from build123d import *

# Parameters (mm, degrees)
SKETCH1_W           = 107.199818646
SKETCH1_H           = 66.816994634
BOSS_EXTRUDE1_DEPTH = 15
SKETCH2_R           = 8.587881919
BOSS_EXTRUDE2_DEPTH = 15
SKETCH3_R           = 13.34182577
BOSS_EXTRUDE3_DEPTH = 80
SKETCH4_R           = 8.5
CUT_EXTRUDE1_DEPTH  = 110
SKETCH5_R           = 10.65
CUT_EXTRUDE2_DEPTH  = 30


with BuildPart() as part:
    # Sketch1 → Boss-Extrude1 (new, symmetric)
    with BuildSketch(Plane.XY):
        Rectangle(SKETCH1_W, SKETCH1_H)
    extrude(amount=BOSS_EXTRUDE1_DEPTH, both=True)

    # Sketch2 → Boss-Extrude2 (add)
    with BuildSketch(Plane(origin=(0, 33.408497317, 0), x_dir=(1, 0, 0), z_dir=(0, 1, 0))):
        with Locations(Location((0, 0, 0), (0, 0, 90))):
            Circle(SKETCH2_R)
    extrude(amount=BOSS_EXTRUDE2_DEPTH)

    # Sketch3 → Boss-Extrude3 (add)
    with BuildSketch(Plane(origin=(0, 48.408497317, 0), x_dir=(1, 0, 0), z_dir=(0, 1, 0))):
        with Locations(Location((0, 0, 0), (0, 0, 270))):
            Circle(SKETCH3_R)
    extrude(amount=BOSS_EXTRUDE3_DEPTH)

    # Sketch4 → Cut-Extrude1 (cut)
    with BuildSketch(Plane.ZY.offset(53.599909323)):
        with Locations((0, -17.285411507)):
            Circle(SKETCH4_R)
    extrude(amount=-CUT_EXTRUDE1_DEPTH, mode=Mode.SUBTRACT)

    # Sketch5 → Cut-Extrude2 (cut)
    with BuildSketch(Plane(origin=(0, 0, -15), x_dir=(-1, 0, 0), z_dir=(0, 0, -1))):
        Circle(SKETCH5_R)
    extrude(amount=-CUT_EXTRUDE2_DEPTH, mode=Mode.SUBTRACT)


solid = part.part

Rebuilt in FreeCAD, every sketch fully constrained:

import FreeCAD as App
import Part
import Sketcher

V = App.Vector

doc = App.newDocument("Part")
body = doc.addObject("PartDesign::Body", "Body")

sketch1 = body.newObject("Sketcher::SketchObject", "Sketch")
sketch1.AttachmentSupport = (doc.getObject("XY_Plane"), [""])
sketch1.MapMode = "FlatFace"
sketch1.addGeometry([
    Part.LineSegment(V(-53.599909, 33.408497, 0), V(-53.599909, -33.408497, 0)),
    Part.LineSegment(V(-53.599909, -33.408497, 0), V(53.599909, -33.408497, 0)),
    Part.LineSegment(V(53.599909, -33.408497, 0), V(53.599909, 33.408497, 0)),
    Part.LineSegment(V(53.599909, 33.408497, 0), V(-53.599909, 33.408497, 0)),
], False)
sketch1.addConstraint([
    Sketcher.Constraint("Coincident", 0, 2, 1, 1),
    Sketcher.Constraint("Coincident", 1, 2, 2, 1),
    Sketcher.Constraint("Coincident", 2, 2, 3, 1),
    Sketcher.Constraint("Coincident", 3, 2, 0, 1),
    Sketcher.Constraint("Vertical", 0),
    Sketcher.Constraint("Horizontal", 1),
    Sketcher.Constraint("Vertical", 2),
    Sketcher.Constraint("Horizontal", 3),
    Sketcher.Constraint("Symmetric", 0, 2, 2, 2, -1, 1),
    Sketcher.Constraint("DistanceX", 1, 1, 1, 2, 107.199819),
    Sketcher.Constraint("DistanceY", 0, 2, 0, 1, 66.816995),
])
pad1 = body.newObject("PartDesign::Pad", "Pad")
pad1.Profile = sketch1
pad1.Length = 30
pad1.Midplane = True

sketch2 = body.newObject("Sketcher::SketchObject", "Sketch001")
sketch2.AttachmentSupport = (doc.getObject("XZ_Plane"), [""])
sketch2.MapMode = "FlatFace"
sketch2.AttachmentOffset = App.Placement(V(0, 0, -33.408497), App.Rotation())
sketch2.addGeometry(Part.Circle(V(0, 0, 0), V(0, 0, 1), 8.587882), False)
sketch2.addConstraint([
    Sketcher.Constraint("Coincident", 0, 3, -1, 1),
    Sketcher.Constraint("Diameter", 0, 17.175764),
])
pad2 = body.newObject("PartDesign::Pad", "Pad001")
pad2.Profile = sketch2
pad2.Length = 15
pad2.Reversed = True

sketch3 = body.newObject("Sketcher::SketchObject", "Sketch002")
sketch3.AttachmentSupport = (doc.getObject("XZ_Plane"), [""])
sketch3.MapMode = "FlatFace"
sketch3.AttachmentOffset = App.Placement(V(0, 0, -48.408497), App.Rotation())
sketch3.addGeometry(Part.Circle(V(0, 0, 0), V(0, 0, 1), 13.341826), False)
sketch3.addConstraint([
    Sketcher.Constraint("Coincident", 0, 3, -1, 1),
    Sketcher.Constraint("Diameter", 0, 26.683652),
])
pad3 = body.newObject("PartDesign::Pad", "Pad002")
pad3.Profile = sketch3
pad3.Length = 80
pad3.Reversed = True

sketch4 = body.newObject("Sketcher::SketchObject", "Sketch003")
sketch4.AttachmentSupport = (doc.getObject("YZ_Plane"), [""])
sketch4.MapMode = "FlatFace"
sketch4.AttachmentOffset = App.Placement(V(0, 0, -53.599909), App.Rotation())
sketch4.addGeometry(Part.Circle(V(-17.285412, 0, 0), V(0, 0, 1), 8.5), False)
sketch4.addConstraint([
    Sketcher.Constraint("PointOnObject", 0, 3, -1),
    Sketcher.Constraint("Diameter", 0, 17.0),
    Sketcher.Constraint("DistanceX", 0, 3, -1, 1, 17.285412),
])
pocket1 = body.newObject("PartDesign::Pocket", "Pocket")
pocket1.Profile = sketch4
pocket1.Length = 110
pocket1.Reversed = True

sketch5 = body.newObject("Sketcher::SketchObject", "Sketch004")
sketch5.AttachmentSupport = (doc.getObject("XY_Plane"), [""])
sketch5.MapMode = "FlatFace"
sketch5.AttachmentOffset = App.Placement(V(0, 0, -15), App.Rotation())
sketch5.addGeometry(Part.Circle(V(0, 0, 0), V(0, 0, 1), 10.65), False)
sketch5.addConstraint([
    Sketcher.Constraint("Coincident", 0, 3, -1, 1),
    Sketcher.Constraint("Diameter", 0, 21.3),
])
pocket2 = body.newObject("PartDesign::Pocket", "Pocket001")
pocket2.Profile = sketch5
pocket2.Length = 30
pocket2.Reversed = True

doc.recompute()
